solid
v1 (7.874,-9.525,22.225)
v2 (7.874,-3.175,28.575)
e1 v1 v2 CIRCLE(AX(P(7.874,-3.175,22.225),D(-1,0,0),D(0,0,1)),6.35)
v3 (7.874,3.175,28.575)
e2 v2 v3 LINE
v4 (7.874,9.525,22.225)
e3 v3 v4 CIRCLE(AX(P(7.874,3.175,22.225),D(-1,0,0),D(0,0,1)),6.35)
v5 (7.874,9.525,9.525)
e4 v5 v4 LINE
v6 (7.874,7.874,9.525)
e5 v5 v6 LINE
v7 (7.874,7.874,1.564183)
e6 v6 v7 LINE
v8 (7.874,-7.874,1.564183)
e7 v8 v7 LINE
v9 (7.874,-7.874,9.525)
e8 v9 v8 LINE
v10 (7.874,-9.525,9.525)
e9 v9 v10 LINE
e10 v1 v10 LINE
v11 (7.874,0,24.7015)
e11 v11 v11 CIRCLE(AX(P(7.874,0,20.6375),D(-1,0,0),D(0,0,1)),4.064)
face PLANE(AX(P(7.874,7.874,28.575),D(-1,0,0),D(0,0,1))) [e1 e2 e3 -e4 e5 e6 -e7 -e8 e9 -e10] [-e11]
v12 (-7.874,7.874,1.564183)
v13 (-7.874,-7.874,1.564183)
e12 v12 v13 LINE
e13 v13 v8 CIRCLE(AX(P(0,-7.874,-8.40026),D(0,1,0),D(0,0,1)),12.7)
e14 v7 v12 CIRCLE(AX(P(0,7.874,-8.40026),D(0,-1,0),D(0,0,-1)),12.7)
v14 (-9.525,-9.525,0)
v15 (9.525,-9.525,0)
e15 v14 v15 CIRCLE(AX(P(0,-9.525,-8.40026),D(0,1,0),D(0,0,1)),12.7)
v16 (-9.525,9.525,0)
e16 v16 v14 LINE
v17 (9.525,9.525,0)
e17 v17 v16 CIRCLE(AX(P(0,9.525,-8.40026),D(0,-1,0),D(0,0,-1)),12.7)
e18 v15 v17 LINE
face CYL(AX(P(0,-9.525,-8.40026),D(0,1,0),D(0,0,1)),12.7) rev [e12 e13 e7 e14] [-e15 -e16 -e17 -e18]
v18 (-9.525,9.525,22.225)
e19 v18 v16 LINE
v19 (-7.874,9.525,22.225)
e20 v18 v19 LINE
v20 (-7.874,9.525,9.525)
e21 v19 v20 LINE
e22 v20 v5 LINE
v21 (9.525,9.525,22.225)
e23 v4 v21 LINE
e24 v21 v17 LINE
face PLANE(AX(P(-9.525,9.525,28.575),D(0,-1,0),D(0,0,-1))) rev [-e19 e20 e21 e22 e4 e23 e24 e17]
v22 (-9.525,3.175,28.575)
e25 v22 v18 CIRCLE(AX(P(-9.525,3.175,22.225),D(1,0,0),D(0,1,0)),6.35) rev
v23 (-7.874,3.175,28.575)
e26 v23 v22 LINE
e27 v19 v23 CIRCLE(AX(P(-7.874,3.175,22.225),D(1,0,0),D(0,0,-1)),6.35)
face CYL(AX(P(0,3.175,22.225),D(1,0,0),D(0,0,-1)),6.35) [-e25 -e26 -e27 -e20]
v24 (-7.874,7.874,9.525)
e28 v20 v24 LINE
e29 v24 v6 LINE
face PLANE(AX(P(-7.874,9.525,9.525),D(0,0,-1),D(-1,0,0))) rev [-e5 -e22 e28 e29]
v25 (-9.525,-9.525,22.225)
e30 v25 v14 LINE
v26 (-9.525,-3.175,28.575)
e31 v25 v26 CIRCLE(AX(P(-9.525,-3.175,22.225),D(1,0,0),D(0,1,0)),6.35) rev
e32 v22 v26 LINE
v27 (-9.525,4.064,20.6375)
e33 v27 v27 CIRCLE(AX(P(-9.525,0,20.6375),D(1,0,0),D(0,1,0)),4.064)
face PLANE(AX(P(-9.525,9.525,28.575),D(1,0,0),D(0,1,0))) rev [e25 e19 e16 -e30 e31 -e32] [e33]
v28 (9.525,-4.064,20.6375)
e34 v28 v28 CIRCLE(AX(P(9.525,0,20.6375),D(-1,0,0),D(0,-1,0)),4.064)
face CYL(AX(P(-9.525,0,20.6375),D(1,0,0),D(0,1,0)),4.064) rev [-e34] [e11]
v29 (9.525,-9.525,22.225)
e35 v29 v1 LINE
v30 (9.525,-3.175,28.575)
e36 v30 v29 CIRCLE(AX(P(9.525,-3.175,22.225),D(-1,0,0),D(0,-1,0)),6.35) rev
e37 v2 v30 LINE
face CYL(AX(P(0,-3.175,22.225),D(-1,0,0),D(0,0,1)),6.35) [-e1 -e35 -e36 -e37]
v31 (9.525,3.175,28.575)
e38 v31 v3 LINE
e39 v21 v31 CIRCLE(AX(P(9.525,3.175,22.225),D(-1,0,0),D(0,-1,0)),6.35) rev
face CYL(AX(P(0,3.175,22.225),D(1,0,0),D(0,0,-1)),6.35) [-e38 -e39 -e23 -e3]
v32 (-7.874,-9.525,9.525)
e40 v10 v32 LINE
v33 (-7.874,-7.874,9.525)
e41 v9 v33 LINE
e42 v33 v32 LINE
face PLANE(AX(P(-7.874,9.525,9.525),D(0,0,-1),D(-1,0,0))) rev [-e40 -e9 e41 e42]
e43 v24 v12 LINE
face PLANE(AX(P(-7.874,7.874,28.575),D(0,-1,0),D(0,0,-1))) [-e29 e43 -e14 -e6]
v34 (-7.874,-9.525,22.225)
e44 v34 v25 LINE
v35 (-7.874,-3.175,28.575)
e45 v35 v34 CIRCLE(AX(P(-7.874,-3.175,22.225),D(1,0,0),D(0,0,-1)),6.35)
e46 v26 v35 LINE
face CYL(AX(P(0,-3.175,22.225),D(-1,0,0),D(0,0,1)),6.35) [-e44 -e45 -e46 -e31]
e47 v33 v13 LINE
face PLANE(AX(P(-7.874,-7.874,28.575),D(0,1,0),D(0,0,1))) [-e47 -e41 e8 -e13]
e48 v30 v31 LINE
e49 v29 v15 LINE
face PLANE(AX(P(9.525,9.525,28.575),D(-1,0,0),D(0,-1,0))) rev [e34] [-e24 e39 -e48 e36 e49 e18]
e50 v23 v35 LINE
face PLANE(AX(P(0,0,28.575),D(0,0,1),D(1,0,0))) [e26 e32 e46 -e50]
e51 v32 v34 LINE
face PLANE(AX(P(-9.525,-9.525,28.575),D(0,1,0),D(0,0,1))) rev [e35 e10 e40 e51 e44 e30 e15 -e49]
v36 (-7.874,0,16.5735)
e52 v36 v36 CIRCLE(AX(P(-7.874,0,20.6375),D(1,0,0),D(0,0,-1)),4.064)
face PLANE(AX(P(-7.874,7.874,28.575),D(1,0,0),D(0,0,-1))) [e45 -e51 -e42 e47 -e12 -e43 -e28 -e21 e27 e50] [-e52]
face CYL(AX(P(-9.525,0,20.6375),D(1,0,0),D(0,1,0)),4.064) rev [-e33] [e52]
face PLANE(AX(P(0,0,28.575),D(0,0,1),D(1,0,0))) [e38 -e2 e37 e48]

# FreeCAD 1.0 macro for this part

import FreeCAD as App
import Part
import Sketcher
Q = App.Units.Quantity


def edges_at(feature, points):
    """Names of the edges that pass closest to the given points."""
    edges = feature.Shape.Edges
    near = lambda p: min(range(len(edges)), key=lambda i: edges[i].distToShape(Part.Vertex(*p))[0])
    return sorted({f"Edge{near(p) + 1}" for p in points})

doc = App.newDocument("Part")
body = doc.addObject("PartDesign::Body", "Body")

# Sketch on XY plane
sketch1 = body.newObject("Sketcher::SketchObject", "Sketch")
sketch1.AttachmentSupport = (doc.getObject("XY_Plane"), [""])
sketch1.MapMode = "FlatFace"
sketch1.addGeometry(Part.LineSegment(App.Vector(-10, 10, 0), App.Vector(-10, -10, 0)), False)
sketch1.addGeometry(Part.LineSegment(App.Vector(-10, -10, 0), App.Vector(10, -10, 0)), False)
sketch1.addGeometry(Part.LineSegment(App.Vector(10, -10, 0), App.Vector(10, 10, 0)), False)
sketch1.addGeometry(Part.LineSegment(App.Vector(10, 10, 0), App.Vector(-10, 10, 0)), False)
sketch1.addGeometry(Part.LineSegment(App.Vector(8, -8, 0), App.Vector(-8, -8, 0)), False)
sketch1.addGeometry(Part.LineSegment(App.Vector(-8, -8, 0), App.Vector(-8, 8, 0)), False)
sketch1.addGeometry(Part.LineSegment(App.Vector(-8, 8, 0), App.Vector(8, 8, 0)), False)
sketch1.addGeometry(Part.LineSegment(App.Vector(8, 8, 0), App.Vector(8, -8, 0)), False)
sketch1.addConstraint(Sketcher.Constraint("Coincident", 0, 2, 1, 1))
sketch1.addConstraint(Sketcher.Constraint("Coincident", 1, 2, 2, 1))
sketch1.addConstraint(Sketcher.Constraint("Coincident", 2, 2, 3, 1))
sketch1.addConstraint(Sketcher.Constraint("Coincident", 3, 2, 0, 1))
sketch1.addConstraint(Sketcher.Constraint("Coincident", 4, 2, 5, 1))
sketch1.addConstraint(Sketcher.Constraint("Coincident", 5, 2, 6, 1))
sketch1.addConstraint(Sketcher.Constraint("Coincident", 6, 2, 7, 1))
sketch1.addConstraint(Sketcher.Constraint("Coincident", 7, 2, 4, 1))
sketch1.addConstraint(Sketcher.Constraint("Vertical", 0))
sketch1.addConstraint(Sketcher.Constraint("Horizontal", 1))
sketch1.addConstraint(Sketcher.Constraint("Vertical", 2))
sketch1.addConstraint(Sketcher.Constraint("Horizontal", 3))
sketch1.addConstraint(Sketcher.Constraint("Horizontal", 4))
sketch1.addConstraint(Sketcher.Constraint("Vertical", 5))
sketch1.addConstraint(Sketcher.Constraint("Horizontal", 6))
sketch1.addConstraint(Sketcher.Constraint("Vertical", 7))
sketch1.addConstraint(Sketcher.Constraint("Symmetric", 0, 2, 2, 2, -1, 1))
sketch1.addConstraint(Sketcher.Constraint("Symmetric", 4, 2, 6, 2, -1, 1))
sketch1.addConstraint(Sketcher.Constraint("Equal", 3, 0))
sketch1.addConstraint(Sketcher.Constraint("Equal", 6, 5))
sketch1.addConstraint(Sketcher.Constraint("DistanceX", 1, 1, 1, 2, Q("0.75 in")))
sketch1.addConstraint(Sketcher.Constraint("DistanceX", 4, 2, 4, 1, Q("0.62 in")))
pad1 = body.newObject("PartDesign::Pad", "Pad")
pad1.Profile = sketch1
pad1.Length = Q("1.125 in")

# Sketch on XZ plane
sketch2 = body.newObject("Sketcher::SketchObject", "Sketch001")
sketch2.AttachmentSupport = (doc.getObject("XZ_Plane"), [""])
sketch2.MapMode = "FlatFace"
sketch2.AttachmentOffset = App.Placement(App.Vector(0, 0, -0.375 * 25.4), App.Rotation())
sketch2.addGeometry(Part.Circle(App.Vector(0, -8, 0), App.Vector(0, 0, 1), 13), False)
sketch2.addConstraint(Sketcher.Constraint("PointOnObject", 0, 3, -2))
sketch2.addConstraint(Sketcher.Constraint("Diameter", 0, Q("1 in")))
sketch2.addConstraint(Sketcher.Constraint("DistanceY", 0, 3, -1, 1, Q("8.40026 mm")))
pocket1 = body.newObject("PartDesign::Pocket", "Pocket")
pocket1.Profile = sketch2
pocket1.Type = "ThroughAll"
pocket1.Midplane = True

# Sketch on YZ plane
sketch3 = body.newObject("Sketcher::SketchObject", "Sketch002")
sketch3.AttachmentSupport = (doc.getObject("YZ_Plane"), [""])
sketch3.MapMode = "FlatFace"
sketch3.AttachmentOffset = App.Placement(App.Vector(0, 0, 0.375 * 25.4), App.Rotation())
sketch3.addGeometry(Part.Circle(App.Vector(0, 20.6, 0), App.Vector(0, 0, 1), 4.1), False)
sketch3.addConstraint(Sketcher.Constraint("PointOnObject", 0, 3, -2))
sketch3.addConstraint(Sketcher.Constraint("Diameter", 0, Q("0.32 in")))
sketch3.addConstraint(Sketcher.Constraint("DistanceY", -1, 1, 0, 3, Q("0.8125 in")))
pocket2 = body.newObject("PartDesign::Pocket", "Pocket001")
pocket2.Profile = sketch3
pocket2.Type = "ThroughAll"
pocket2.Midplane = True

# Sketch on XZ plane
sketch4 = body.newObject("Sketcher::SketchObject", "Sketch003")
sketch4.AttachmentSupport = (doc.getObject("XZ_Plane"), [""])
sketch4.MapMode = "FlatFace"
sketch4.AttachmentOffset = App.Placement(App.Vector(0, 0, 0.375 * 25.4), App.Rotation())
sketch4.addGeometry(Part.LineSegment(App.Vector(-8, 29, 0), App.Vector(-8, 10, 0)), False)
sketch4.addGeometry(Part.LineSegment(App.Vector(-8, 10, 0), App.Vector(8, 10, 0)), False)
sketch4.addGeometry(Part.LineSegment(App.Vector(8, 10, 0), App.Vector(8, 29, 0)), False)
sketch4.addGeometry(Part.LineSegment(App.Vector(8, 29, 0), App.Vector(-8, 29, 0)), False)
sketch4.addConstraint(Sketcher.Constraint("Coincident", 0, 2, 1, 1))
sketch4.addConstraint(Sketcher.Constraint("Coincident", 1, 2, 2, 1))
sketch4.addConstraint(Sketcher.Constraint("Coincident", 2, 2, 3, 1))
sketch4.addConstraint(Sketcher.Constraint("Coincident", 3, 2, 0, 1))
sketch4.addConstraint(Sketcher.Constraint("Vertical", 0))
sketch4.addConstraint(Sketcher.Constraint("Horizontal", 1))
sketch4.addConstraint(Sketcher.Constraint("Vertical", 2))
sketch4.addConstraint(Sketcher.Constraint("Horizontal", 3))
sketch4.addConstraint(Sketcher.Constraint("DistanceX", 1, 1, 1, 2, Q("0.62 in")))
sketch4.addConstraint(Sketcher.Constraint("DistanceY", 0, 2, 0, 1, Q("0.75 in")))
sketch4.addConstraint(Sketcher.Constraint("DistanceX", 0, 2, -1, 1, Q("0.31 in")))
sketch4.addConstraint(Sketcher.Constraint("DistanceY", -1, 1, 0, 2, Q("0.375 in")))
pocket3 = body.newObject("PartDesign::Pocket", "Pocket002")
pocket3.Profile = sketch4
pocket3.Type = "ThroughAll"
pocket3.Midplane = True
doc.recompute()

fillet = body.newObject("PartDesign::Fillet", "Fillet")
fillet.Base = (pocket3, edges_at(pocket3, [
    (-8.7, -9.525, 28.575),
    (8.7, -9.525, 28.575),
    (-8.7, 9.525, 28.575),
    (8.7, 9.525, 28.575),
]))
fillet.Radius = Q("0.25 in")

doc.recompute()
